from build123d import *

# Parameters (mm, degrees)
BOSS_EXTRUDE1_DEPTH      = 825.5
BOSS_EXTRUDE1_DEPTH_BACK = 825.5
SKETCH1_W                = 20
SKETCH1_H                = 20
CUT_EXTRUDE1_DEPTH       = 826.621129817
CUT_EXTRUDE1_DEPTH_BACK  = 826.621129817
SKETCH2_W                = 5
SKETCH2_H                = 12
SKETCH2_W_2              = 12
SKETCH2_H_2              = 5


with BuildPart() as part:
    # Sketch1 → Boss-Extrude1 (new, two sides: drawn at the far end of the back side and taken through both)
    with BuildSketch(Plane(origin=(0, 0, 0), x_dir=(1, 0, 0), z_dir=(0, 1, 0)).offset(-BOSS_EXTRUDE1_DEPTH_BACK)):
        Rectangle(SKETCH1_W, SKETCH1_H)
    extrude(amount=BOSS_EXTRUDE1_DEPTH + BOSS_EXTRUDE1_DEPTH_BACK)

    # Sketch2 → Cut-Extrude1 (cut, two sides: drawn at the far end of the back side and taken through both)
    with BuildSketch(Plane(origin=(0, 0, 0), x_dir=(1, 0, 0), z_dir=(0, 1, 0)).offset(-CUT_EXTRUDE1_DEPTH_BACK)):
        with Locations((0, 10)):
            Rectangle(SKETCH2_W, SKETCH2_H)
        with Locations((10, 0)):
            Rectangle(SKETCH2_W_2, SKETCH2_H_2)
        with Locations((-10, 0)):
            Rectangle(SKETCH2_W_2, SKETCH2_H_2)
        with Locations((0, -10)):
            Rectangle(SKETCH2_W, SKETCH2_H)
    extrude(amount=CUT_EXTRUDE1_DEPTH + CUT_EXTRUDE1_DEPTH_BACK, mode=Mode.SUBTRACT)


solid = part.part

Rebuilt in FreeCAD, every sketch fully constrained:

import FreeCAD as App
import Part
import Sketcher

V = App.Vector
Q = App.Units.Quantity


def add_polygon(sketch, points):
    """Adds a closed chain of lines whose ends are joined by coincident constraints."""
    first, n = sketch.GeometryCount, len(points)
    for a, b in zip(points, points[1:] + points[:1]):
        sketch.addGeometry(Part.LineSegment(App.Vector(*a, 0), App.Vector(*b, 0)), False)
    for i in range(n):
        sketch.addConstraint(Sketcher.Constraint("Coincident", first + i, 2, first + (i + 1) % n, 1))

doc = App.newDocument("Part")
body = doc.addObject("PartDesign::Body", "Body")

sketch1 = body.newObject("Sketcher::SketchObject", "Sketch")
sketch1.AttachmentSupport = (doc.getObject("XZ_Plane"), [""])
sketch1.MapMode = "FlatFace"
add_polygon(sketch1, [(-10, -10), (-10, 10), (10, 10), (10, -10)])
sketch1.addConstraint(Sketcher.Constraint("Vertical", 0))
sketch1.addConstraint(Sketcher.Constraint("Horizontal", 1))
sketch1.addConstraint(Sketcher.Constraint("Vertical", 2))
sketch1.addConstraint(Sketcher.Constraint("Horizontal", 3))
sketch1.addConstraint(Sketcher.Constraint("Symmetric", 0, 2, 2, 2, -1, 1))
sketch1.addConstraint(Sketcher.Constraint("Equal", 3, 0))
sketch1.addConstraint(Sketcher.Constraint("DistanceX", 1, 1, 1, 2, Q("20 mm")))
pad1 = body.newObject("PartDesign::Pad", "Pad")
pad1.Profile = sketch1
pad1.Type = "TwoLengths"
pad1.Length = 825.5
pad1.Length2 = 825.5
pad1.Reversed = True

sketch2 = body.newObject("Sketcher::SketchObject", "Sketch001")
sketch2.AttachmentSupport = (doc.getObject("XZ_Plane"), [""])
sketch2.MapMode = "FlatFace"
add_polygon(sketch2, [(-2, -16), (-2, -4), (2, -4), (2, -16)])
add_polygon(sketch2, [(4, -2), (4, 2), (16, 2), (16, -2)])
add_polygon(sketch2, [(-16, -2), (-16, 2), (-4, 2), (-4, -2)])
add_polygon(sketch2, [(-2, 4), (-2, 16), (2, 16), (2, 4)])
sketch2.addConstraint(Sketcher.Constraint("Vertical", 0))
sketch2.addConstraint(Sketcher.Constraint("Horizontal", 1))
sketch2.addConstraint(Sketcher.Constraint("Vertical", 2))
sketch2.addConstraint(Sketcher.Constraint("Horizontal", 3))
sketch2.addConstraint(Sketcher.Constraint("Vertical", 4))
sketch2.addConstraint(Sketcher.Constraint("Horizontal", 5))
sketch2.addConstraint(Sketcher.Constraint("Vertical", 6))
sketch2.addConstraint(Sketcher.Constraint("Horizontal", 7))
sketch2.addConstraint(Sketcher.Constraint("Vertical", 8))
sketch2.addConstraint(Sketcher.Constraint("Horizontal", 9))
sketch2.addConstraint(Sketcher.Constraint("Vertical", 10))
sketch2.addConstraint(Sketcher.Constraint("Horizontal", 11))
sketch2.addConstraint(Sketcher.Constraint("Vertical", 12))
sketch2.addConstraint(Sketcher.Constraint("Horizontal", 13))
sketch2.addConstraint(Sketcher.Constraint("Vertical", 14))
sketch2.addConstraint(Sketcher.Constraint("Horizontal", 15))
sketch2.addConstraint(Sketcher.Constraint("Symmetric", 6, 2, 8, 2, -1, 1))
sketch2.addConstraint(Sketcher.Constraint("Symmetric", 4, 2, 10, 2, -1, 1))
sketch2.addConstraint(Sketcher.Constraint("Symmetric", 2, 2, 12, 2, -1, 1))
sketch2.addConstraint(Sketcher.Constraint("Symmetric", 0, 2, 14, 2, -1, 1))
sketch2.addConstraint(Sketcher.Constraint("Horizontal", 5, 2, 8, 2))
sketch2.addConstraint(Sketcher.Constraint("Vertical", 3, 2, 12, 2))
sketch2.addConstraint(Sketcher.Constraint("Equal", 11, 0))
sketch2.addConstraint(Sketcher.Constraint("Equal", 15, 4))
sketch2.addConstraint(Sketcher.Constraint("DistanceX", 1, 1, 1, 2, Q("5 mm")))
sketch2.addConstraint(Sketcher.Constraint("DistanceX", 5, 1, 5, 2, Q("12 mm")))
sketch2.addConstraint(Sketcher.Constraint("DistanceY", 0, 2, -1, 1, Q("4 mm")))
sketch2.addConstraint(Sketcher.Constraint("DistanceX", -1, 1, 4, 2, Q("4 mm")))
pocket1 = body.newObject("PartDesign::Pocket", "Pocket")
pocket1.Profile = sketch2
pocket1.Type = "ThroughAll"
pocket1.Midplane = True

doc.recompute()
